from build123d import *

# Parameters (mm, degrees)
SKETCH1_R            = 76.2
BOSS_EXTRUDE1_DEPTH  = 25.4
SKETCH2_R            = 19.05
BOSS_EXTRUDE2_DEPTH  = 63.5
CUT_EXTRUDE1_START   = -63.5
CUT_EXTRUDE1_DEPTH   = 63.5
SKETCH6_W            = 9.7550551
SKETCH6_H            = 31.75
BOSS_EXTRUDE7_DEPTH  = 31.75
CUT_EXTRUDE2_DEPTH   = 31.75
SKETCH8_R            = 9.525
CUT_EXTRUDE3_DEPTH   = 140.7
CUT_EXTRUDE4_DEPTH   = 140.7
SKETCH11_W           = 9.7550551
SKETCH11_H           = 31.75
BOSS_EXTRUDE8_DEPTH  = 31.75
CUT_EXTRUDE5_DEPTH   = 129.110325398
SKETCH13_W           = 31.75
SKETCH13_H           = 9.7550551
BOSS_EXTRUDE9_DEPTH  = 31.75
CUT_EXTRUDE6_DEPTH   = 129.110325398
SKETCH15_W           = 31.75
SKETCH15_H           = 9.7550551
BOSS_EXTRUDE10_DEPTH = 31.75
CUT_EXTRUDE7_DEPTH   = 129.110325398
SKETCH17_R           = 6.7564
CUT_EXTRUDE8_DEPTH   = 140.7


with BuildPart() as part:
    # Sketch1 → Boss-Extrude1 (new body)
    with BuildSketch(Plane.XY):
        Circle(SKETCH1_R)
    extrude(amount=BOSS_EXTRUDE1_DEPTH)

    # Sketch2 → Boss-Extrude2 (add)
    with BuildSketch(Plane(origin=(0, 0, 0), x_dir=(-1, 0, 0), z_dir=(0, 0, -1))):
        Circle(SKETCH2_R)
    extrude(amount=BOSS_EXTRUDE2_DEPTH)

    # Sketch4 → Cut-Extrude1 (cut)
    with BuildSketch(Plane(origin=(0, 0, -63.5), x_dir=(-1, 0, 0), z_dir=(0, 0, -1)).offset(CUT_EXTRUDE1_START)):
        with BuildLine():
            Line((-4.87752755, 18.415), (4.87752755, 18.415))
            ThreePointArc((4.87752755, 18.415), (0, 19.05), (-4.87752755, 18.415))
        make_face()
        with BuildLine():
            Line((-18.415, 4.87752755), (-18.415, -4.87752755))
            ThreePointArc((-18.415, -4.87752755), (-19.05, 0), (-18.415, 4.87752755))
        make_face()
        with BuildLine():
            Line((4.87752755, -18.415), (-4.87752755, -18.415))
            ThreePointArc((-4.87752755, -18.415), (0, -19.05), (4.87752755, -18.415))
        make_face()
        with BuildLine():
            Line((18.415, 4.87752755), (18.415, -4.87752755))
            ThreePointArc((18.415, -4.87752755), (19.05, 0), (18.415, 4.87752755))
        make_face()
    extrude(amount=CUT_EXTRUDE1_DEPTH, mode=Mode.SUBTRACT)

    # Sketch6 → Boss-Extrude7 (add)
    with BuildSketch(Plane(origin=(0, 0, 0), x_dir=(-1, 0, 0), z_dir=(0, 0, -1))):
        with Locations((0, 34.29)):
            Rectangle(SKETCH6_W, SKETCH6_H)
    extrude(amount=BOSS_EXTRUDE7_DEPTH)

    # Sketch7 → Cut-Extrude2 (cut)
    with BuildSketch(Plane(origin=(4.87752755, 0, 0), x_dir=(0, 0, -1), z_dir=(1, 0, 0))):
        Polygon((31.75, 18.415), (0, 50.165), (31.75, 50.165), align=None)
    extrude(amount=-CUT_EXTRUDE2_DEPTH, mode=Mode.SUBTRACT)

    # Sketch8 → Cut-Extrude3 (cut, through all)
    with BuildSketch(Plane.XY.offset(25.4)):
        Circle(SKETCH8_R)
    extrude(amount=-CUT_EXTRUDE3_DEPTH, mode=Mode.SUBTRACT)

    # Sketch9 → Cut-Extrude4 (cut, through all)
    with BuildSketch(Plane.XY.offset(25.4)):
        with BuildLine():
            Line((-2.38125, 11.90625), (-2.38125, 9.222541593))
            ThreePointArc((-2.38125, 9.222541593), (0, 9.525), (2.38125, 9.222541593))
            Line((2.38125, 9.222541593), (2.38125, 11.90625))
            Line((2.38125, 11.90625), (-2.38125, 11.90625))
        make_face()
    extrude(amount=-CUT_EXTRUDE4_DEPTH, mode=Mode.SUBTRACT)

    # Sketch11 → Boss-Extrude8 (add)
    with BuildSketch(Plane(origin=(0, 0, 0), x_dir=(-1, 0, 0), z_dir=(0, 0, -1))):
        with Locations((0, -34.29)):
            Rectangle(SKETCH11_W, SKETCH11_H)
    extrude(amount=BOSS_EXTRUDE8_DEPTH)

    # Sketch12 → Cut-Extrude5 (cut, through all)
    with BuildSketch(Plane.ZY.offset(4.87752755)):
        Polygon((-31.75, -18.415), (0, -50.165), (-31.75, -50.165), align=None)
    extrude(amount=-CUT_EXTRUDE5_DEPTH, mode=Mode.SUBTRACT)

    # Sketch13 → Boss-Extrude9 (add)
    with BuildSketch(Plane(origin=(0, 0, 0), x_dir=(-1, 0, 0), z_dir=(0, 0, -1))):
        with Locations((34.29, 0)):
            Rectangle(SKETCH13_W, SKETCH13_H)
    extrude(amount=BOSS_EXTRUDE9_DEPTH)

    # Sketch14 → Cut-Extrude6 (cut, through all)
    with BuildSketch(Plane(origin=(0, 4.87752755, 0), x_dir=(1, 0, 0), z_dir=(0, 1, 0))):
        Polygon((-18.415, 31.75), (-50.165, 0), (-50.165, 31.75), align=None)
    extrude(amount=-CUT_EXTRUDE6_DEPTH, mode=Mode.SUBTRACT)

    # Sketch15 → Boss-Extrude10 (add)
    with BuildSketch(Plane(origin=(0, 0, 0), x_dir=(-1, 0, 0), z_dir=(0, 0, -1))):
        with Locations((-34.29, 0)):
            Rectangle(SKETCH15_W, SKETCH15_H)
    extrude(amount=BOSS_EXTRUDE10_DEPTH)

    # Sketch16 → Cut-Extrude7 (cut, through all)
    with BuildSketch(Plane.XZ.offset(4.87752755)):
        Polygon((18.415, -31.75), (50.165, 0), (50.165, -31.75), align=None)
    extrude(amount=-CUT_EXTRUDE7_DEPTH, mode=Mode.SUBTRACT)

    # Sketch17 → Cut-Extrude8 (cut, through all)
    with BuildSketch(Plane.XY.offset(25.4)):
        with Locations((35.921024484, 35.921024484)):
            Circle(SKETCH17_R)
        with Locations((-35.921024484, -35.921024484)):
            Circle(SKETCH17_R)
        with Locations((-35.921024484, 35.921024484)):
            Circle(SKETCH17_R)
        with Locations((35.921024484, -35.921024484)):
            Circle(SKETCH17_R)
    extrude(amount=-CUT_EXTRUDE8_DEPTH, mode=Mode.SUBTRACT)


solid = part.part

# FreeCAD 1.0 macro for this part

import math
import FreeCAD as App
import Part
import Sketcher

V = App.Vector
Q = App.Units.Quantity

doc = App.newDocument("Part")
body = doc.addObject("PartDesign::Body", "Body")

# Sketch on XY plane
sketch1 = body.newObject("Sketcher::SketchObject", "Sketch")
sketch1.AttachmentSupport = (doc.getObject("XY_Plane"), [""])
sketch1.MapMode = "FlatFace"
sketch1.addGeometry(Part.Circle(V(0, 0, 0), V(0, 0, 1), 76), False)
sketch1.addConstraint(Sketcher.Constraint("Coincident", 0, 3, -1, 1))
sketch1.addConstraint(Sketcher.Constraint("Diameter", 0, Q("6 in")))
pad1 = body.newObject("PartDesign::Pad", "Pad")
pad1.Profile = sketch1
pad1.Length = Q("1 in")

# Sketch on XY plane
sketch2 = body.newObject("Sketcher::SketchObject", "Sketch001")
sketch2.AttachmentSupport = (doc.getObject("XY_Plane"), [""])
sketch2.MapMode = "FlatFace"
sketch2.addGeometry(Part.Circle(V(0, 0, 0), V(0, 0, 1), 19), False)
sketch2.addConstraint(Sketcher.Constraint("Coincident", 0, 3, -1, 1))
sketch2.addConstraint(Sketcher.Constraint("Diameter", 0, Q("1.5 in")))
pad2 = body.newObject("PartDesign::Pad", "Pad001")
pad2.Profile = sketch2
pad2.Length = Q("2.5 in")
pad2.Reversed = True

# Sketch on XY plane
sketch3 = body.newObject("Sketcher::SketchObject", "Sketch002")
sketch3.AttachmentSupport = (doc.getObject("XY_Plane"), [""])
sketch3.MapMode = "FlatFace"
sketch3.addGeometry(Part.LineSegment(V(5, 18, 0), V(-5, 18, 0)), False)
sketch3.addGeometry(Part.ArcOfCircle(Part.Circle(V(0, 0, 0), V(0, 0, 1), 19), math.radians(75), math.radians(105)), False)
sketch3.addGeometry(Part.LineSegment(V(18, -5, 0), V(18, 5, 0)), False)
sketch3.addGeometry(Part.ArcOfCircle(Part.Circle(V(0, 0, 0), V(0, 0, 1), 19), math.radians(-15), math.radians(15)), False)
sketch3.addGeometry(Part.LineSegment(V(-5, -18, 0), V(5, -18, 0)), False)
sketch3.addGeometry(Part.ArcOfCircle(Part.Circle(V(0, 0, 0), V(0, 0, 1), 19), math.radians(-105), math.radians(-75)), False)
sketch3.addGeometry(Part.LineSegment(V(-18, 5, 0), V(-18, -5, 0)), False)
sketch3.addGeometry(Part.ArcOfCircle(Part.Circle(V(0, 0, 0), V(0, 0, 1), 19), math.radians(165), math.radians(195)), False)
sketch3.addConstraint(Sketcher.Constraint("Coincident", 0, 1, 1, 1))
sketch3.addConstraint(Sketcher.Constraint("Coincident", 1, 2, 0, 2))
sketch3.addConstraint(Sketcher.Constraint("Coincident", 2, 1, 3, 1))
sketch3.addConstraint(Sketcher.Constraint("Coincident", 3, 2, 2, 2))
sketch3.addConstraint(Sketcher.Constraint("Coincident", 4, 1, 5, 1))
sketch3.addConstraint(Sketcher.Constraint("Coincident", 5, 2, 4, 2))
sketch3.addConstraint(Sketcher.Constraint("Coincident", 6, 1, 7, 1))
sketch3.addConstraint(Sketcher.Constraint("Coincident", 7, 2, 6, 2))
sketch3.addConstraint(Sketcher.Constraint("Horizontal", 0))
sketch3.addConstraint(Sketcher.Constraint("Vertical", 2))
sketch3.addConstraint(Sketcher.Constraint("Horizontal", 4))
sketch3.addConstraint(Sketcher.Constraint("Vertical", 6))
sketch3.addConstraint(Sketcher.Constraint("Coincident", 1, 3, -1, 1))
sketch3.addConstraint(Sketcher.Constraint("Coincident", 3, 3, -1, 1))
sketch3.addConstraint(Sketcher.Constraint("Coincident", 5, 3, -1, 1))
sketch3.addConstraint(Sketcher.Constraint("Coincident", 7, 3, -1, 1))
sketch3.addConstraint(Sketcher.Constraint("Equal", 1, 3))
sketch3.addConstraint(Sketcher.Constraint("Equal", 3, 5))
sketch3.addConstraint(Sketcher.Constraint("Equal", 5, 7))
sketch3.addConstraint(Sketcher.Constraint("Horizontal", 3, 2, 6, 1))
sketch3.addConstraint(Sketcher.Constraint("Vertical", 1, 2, 4, 1))
sketch3.addConstraint(Sketcher.Constraint("Equal", 4, 2))
sketch3.addConstraint(Sketcher.Constraint("Radius", 1, Q("0.75 in")))
sketch3.addConstraint(Sketcher.Constraint("DistanceY", -1, 1, 0, 1, Q("0.725 in")))
pocket1 = body.newObject("PartDesign::Pocket", "Pocket")
pocket1.Profile = sketch3
pocket1.Length = Q("2.5 in")

# Sketch on XY plane
sketch4 = body.newObject("Sketcher::SketchObject", "Sketch003")
sketch4.AttachmentSupport = (doc.getObject("XY_Plane"), [""])
sketch4.MapMode = "FlatFace"
sketch4.addGeometry(Part.LineSegment(V(5, 50, 0), V(5, 18, 0)), False)
sketch4.addGeometry(Part.LineSegment(V(5, 18, 0), V(-5, 18, 0)), False)
sketch4.addGeometry(Part.LineSegment(V(-5, 18, 0), V(-5, 50, 0)), False)
sketch4.addGeometry(Part.LineSegment(V(-5, 50, 0), V(5, 50, 0)), False)
sketch4.addConstraint(Sketcher.Constraint("Coincident", 0, 2, 1, 1))
sketch4.addConstraint(Sketcher.Constraint("Coincident", 1, 2, 2, 1))
sketch4.addConstraint(Sketcher.Constraint("Coincident", 2, 2, 3, 1))
sketch4.addConstraint(Sketcher.Constraint("Coincident", 3, 2, 0, 1))
sketch4.addConstraint(Sketcher.Constraint("Vertical", 0))
sketch4.addConstraint(Sketcher.Constraint("Horizontal", 1))
sketch4.addConstraint(Sketcher.Constraint("Vertical", 2))
sketch4.addConstraint(Sketcher.Constraint("Horizontal", 3))
sketch4.addConstraint(Sketcher.Constraint("DistanceY", 0, 2, 0, 1, Q("1.25 in")))
sketch4.addConstraint(Sketcher.Constraint("DistanceY", -1, 1, 0, 2, Q("0.725 in")))
sketch4.addConstraint(Sketcher.Constraint("DistanceX", 1, 2, 1, 1, 9.755055))
sketch4.addConstraint(Sketcher.Constraint("DistanceX", -1, 1, 0, 2, 4.877528))
pad3 = body.newObject("PartDesign::Pad", "Pad002")
pad3.Profile = sketch4
pad3.Length = Q("1.25 in")
pad3.Reversed = True

# Sketch on YZ plane
sketch5 = body.newObject("Sketcher::SketchObject", "Sketch004")
sketch5.AttachmentSupport = (doc.getObject("YZ_Plane"), [""])
sketch5.MapMode = "FlatFace"
sketch5.AttachmentOffset = App.Placement(V(0, 0, 4.877528), App.Rotation())
sketch5.addGeometry(Part.LineSegment(V(50, 0, 0), V(18, -32, 0)), False)
sketch5.addGeometry(Part.LineSegment(V(18, -32, 0), V(50, -32, 0)), False)
sketch5.addGeometry(Part.LineSegment(V(50, -32, 0), V(50, 0, 0)), False)
sketch5.addConstraint(Sketcher.Constraint("Coincident", 0, 2, 1, 1))
sketch5.addConstraint(Sketcher.Constraint("Coincident", 1, 2, 2, 1))
sketch5.addConstraint(Sketcher.Constraint("Coincident", 2, 2, 0, 1))
sketch5.addConstraint(Sketcher.Constraint("Horizontal", 1))
sketch5.addConstraint(Sketcher.Constraint("Vertical", 2))
sketch5.addConstraint(Sketcher.Constraint("PointOnObject", 2, 2, -1))
sketch5.addConstraint(Sketcher.Constraint("Equal", 1, 2))
sketch5.addConstraint(Sketcher.Constraint("DistanceX", 1, 1, 1, 2, Q("1.25 in")))
sketch5.addConstraint(Sketcher.Constraint("DistanceX", -1, 1, 0, 2, Q("0.725 in")))
pocket2 = body.newObject("PartDesign::Pocket", "Pocket001")
pocket2.Profile = sketch5
pocket2.Length = Q("1.25 in")

# Sketch on XY plane
sketch6 = body.newObject("Sketcher::SketchObject", "Sketch005")
sketch6.AttachmentSupport = (doc.getObject("XY_Plane"), [""])
sketch6.MapMode = "FlatFace"
sketch6.AttachmentOffset = App.Placement(V(0, 0, 1 * 25.4), App.Rotation())
sketch6.addGeometry(Part.Circle(V(0, 0, 0), V(0, 0, 1), 10), False)
sketch6.addConstraint(Sketcher.Constraint("Coincident", 0, 3, -1, 1))
sketch6.addConstraint(Sketcher.Constraint("Diameter", 0, Q("0.75 in")))
pocket3 = body.newObject("PartDesign::Pocket", "Pocket002")
pocket3.Profile = sketch6
pocket3.Type = "ThroughAll"

# Sketch on XY plane
sketch7 = body.newObject("Sketcher::SketchObject", "Sketch006")
sketch7.AttachmentSupport = (doc.getObject("XY_Plane"), [""])
sketch7.MapMode = "FlatFace"
sketch7.AttachmentOffset = App.Placement(V(0, 0, 1 * 25.4), App.Rotation())
sketch7.addGeometry(Part.LineSegment(V(-2.4, 11.9, 0), V(-2.4, 9.2, 0)), False)
sketch7.addGeometry(Part.ArcOfCircle(Part.Circle(V(0, 0, 0), V(0, 0, 1), 9.5), math.radians(76), math.radians(104)), False)
sketch7.addGeometry(Part.LineSegment(V(2.4, 9.2, 0), V(2.4, 11.9, 0)), False)
sketch7.addGeometry(Part.LineSegment(V(2.4, 11.9, 0), V(-2.4, 11.9, 0)), False)
sketch7.addConstraint(Sketcher.Constraint("Coincident", 0, 2, 1, 2))
sketch7.addConstraint(Sketcher.Constraint("Coincident", 1, 1, 2, 1))
sketch7.addConstraint(Sketcher.Constraint("Coincident", 2, 2, 3, 1))
sketch7.addConstraint(Sketcher.Constraint("Coincident", 3, 2, 0, 1))
sketch7.addConstraint(Sketcher.Constraint("Vertical", 0))
sketch7.addConstraint(Sketcher.Constraint("Vertical", 2))
sketch7.addConstraint(Sketcher.Constraint("Horizontal", 3))
sketch7.addConstraint(Sketcher.Constraint("Coincident", 1, 3, -1, 1))
sketch7.addConstraint(Sketcher.Constraint("Horizontal", 0, 2, 1, 1))
sketch7.addConstraint(Sketcher.Constraint("Radius", 1, Q("0.375 in")))
sketch7.addConstraint(Sketcher.Constraint("DistanceX", 3, 2, 3, 1, Q("0.1875 in")))
sketch7.addConstraint(Sketcher.Constraint("DistanceY", -1, 1, 2, 2, Q("0.46875 in")))
pocket4 = body.newObject("PartDesign::Pocket", "Pocket003")
pocket4.Profile = sketch7
pocket4.Type = "ThroughAll"

# Sketch on XY plane
sketch8 = body.newObject("Sketcher::SketchObject", "Sketch007")
sketch8.AttachmentSupport = (doc.getObject("XY_Plane"), [""])
sketch8.MapMode = "FlatFace"
sketch8.addGeometry(Part.LineSegment(V(5, -18, 0), V(5, -50, 0)), False)
sketch8.addGeometry(Part.LineSegment(V(5, -50, 0), V(-5, -50, 0)), False)
sketch8.addGeometry(Part.LineSegment(V(-5, -50, 0), V(-5, -18, 0)), False)
sketch8.addGeometry(Part.LineSegment(V(-5, -18, 0), V(5, -18, 0)), False)
sketch8.addConstraint(Sketcher.Constraint("Coincident", 0, 2, 1, 1))
sketch8.addConstraint(Sketcher.Constraint("Coincident", 1, 2, 2, 1))
sketch8.addConstraint(Sketcher.Constraint("Coincident", 2, 2, 3, 1))
sketch8.addConstraint(Sketcher.Constraint("Coincident", 3, 2, 0, 1))
sketch8.addConstraint(Sketcher.Constraint("Vertical", 0))
sketch8.addConstraint(Sketcher.Constraint("Horizontal", 1))
sketch8.addConstraint(Sketcher.Constraint("Vertical", 2))
sketch8.addConstraint(Sketcher.Constraint("Horizontal", 3))
sketch8.addConstraint(Sketcher.Constraint("DistanceY", 0, 2, 0, 1, Q("1.25 in")))
sketch8.addConstraint(Sketcher.Constraint("DistanceY", 0, 2, -1, 1, Q("1.975 in")))
sketch8.addConstraint(Sketcher.Constraint("DistanceX", 1, 2, 1, 1, 9.755055))
sketch8.addConstraint(Sketcher.Constraint("DistanceX", -1, 1, 0, 2, 4.877528))
pad4 = body.newObject("PartDesign::Pad", "Pad003")
pad4.Profile = sketch8
pad4.Length = Q("1.25 in")
pad4.Reversed = True

# Sketch on YZ plane
sketch9 = body.newObject("Sketcher::SketchObject", "Sketch008")
sketch9.AttachmentSupport = (doc.getObject("YZ_Plane"), [""])
sketch9.MapMode = "FlatFace"
sketch9.AttachmentOffset = App.Placement(V(0, 0, -4.877528), App.Rotation())
sketch9.addGeometry(Part.LineSegment(V(-50, 0, 0), V(-18, -32, 0)), False)
sketch9.addGeometry(Part.LineSegment(V(-18, -32, 0), V(-50, -32, 0)), False)
sketch9.addGeometry(Part.LineSegment(V(-50, -32, 0), V(-50, 0, 0)), False)
sketch9.addConstraint(Sketcher.Constraint("Coincident", 0, 2, 1, 1))
sketch9.addConstraint(Sketcher.Constraint("Coincident", 1, 2, 2, 1))
sketch9.addConstraint(Sketcher.Constraint("Coincident", 2, 2, 0, 1))
sketch9.addConstraint(Sketcher.Constraint("Horizontal", 1))
sketch9.addConstraint(Sketcher.Constraint("Vertical", 2))
sketch9.addConstraint(Sketcher.Constraint("PointOnObject", 2, 2, -1))
sketch9.addConstraint(Sketcher.Constraint("Equal", 1, 2))
sketch9.addConstraint(Sketcher.Constraint("DistanceX", 1, 2, 1, 1, Q("1.25 in")))
sketch9.addConstraint(Sketcher.Constraint("DistanceX", 0, 2, -1, 1, Q("0.725 in")))
pocket5 = body.newObject("PartDesign::Pocket", "Pocket004")
pocket5.Profile = sketch9
pocket5.Type = "ThroughAll"
pocket5.Reversed = True

# Sketch on XY plane
sketch10 = body.newObject("Sketcher::SketchObject", "Sketch009")
sketch10.AttachmentSupport = (doc.getObject("XY_Plane"), [""])
sketch10.MapMode = "FlatFace"
sketch10.addGeometry(Part.LineSegment(V(-18, 5, 0), V(-18, -5, 0)), False)
sketch10.addGeometry(Part.LineSegment(V(-18, -5, 0), V(-50, -5, 0)), False)
sketch10.addGeometry(Part.LineSegment(V(-50, -5, 0), V(-50, 5, 0)), False)
sketch10.addGeometry(Part.LineSegment(V(-50, 5, 0), V(-18, 5, 0)), False)
sketch10.addConstraint(Sketcher.Constraint("Coincident", 0, 2, 1, 1))
sketch10.addConstraint(Sketcher.Constraint("Coincident", 1, 2, 2, 1))
sketch10.addConstraint(Sketcher.Constraint("Coincident", 2, 2, 3, 1))
sketch10.addConstraint(Sketcher.Constraint("Coincident", 3, 2, 0, 1))
sketch10.addConstraint(Sketcher.Constraint("Vertical", 0))
sketch10.addConstraint(Sketcher.Constraint("Horizontal", 1))
sketch10.addConstraint(Sketcher.Constraint("Vertical", 2))
sketch10.addConstraint(Sketcher.Constraint("Horizontal", 3))
sketch10.addConstraint(Sketcher.Constraint("DistanceX", 1, 2, 1, 1, Q("1.25 in")))
sketch10.addConstraint(Sketcher.Constraint("DistanceX", 0, 2, -1, 1, Q("0.725 in")))
sketch10.addConstraint(Sketcher.Constraint("DistanceY", 0, 2, 0, 1, 9.755055))
sketch10.addConstraint(Sketcher.Constraint("DistanceY", 0, 2, -1, 1, 4.877528))
pad5 = body.newObject("PartDesign::Pad", "Pad004")
pad5.Profile = sketch10
pad5.Length = Q("1.25 in")
pad5.Reversed = True

# Sketch on XZ plane
sketch11 = body.newObject("Sketcher::SketchObject", "Sketch010")
sketch11.AttachmentSupport = (doc.getObject("XZ_Plane"), [""])
sketch11.MapMode = "FlatFace"
sketch11.AttachmentOffset = App.Placement(V(0, 0, -4.877528), App.Rotation())
sketch11.addGeometry(Part.LineSegment(V(-50, 0, 0), V(-18, -32, 0)), False)
sketch11.addGeometry(Part.LineSegment(V(-18, -32, 0), V(-50, -32, 0)), False)
sketch11.addGeometry(Part.LineSegment(V(-50, -32, 0), V(-50, 0, 0)), False)
sketch11.addConstraint(Sketcher.Constraint("Coincident", 0, 2, 1, 1))
sketch11.addConstraint(Sketcher.Constraint("Coincident", 1, 2, 2, 1))
sketch11.addConstraint(Sketcher.Constraint("Coincident", 2, 2, 0, 1))
sketch11.addConstraint(Sketcher.Constraint("Horizontal", 1))
sketch11.addConstraint(Sketcher.Constraint("Vertical", 2))
sketch11.addConstraint(Sketcher.Constraint("PointOnObject", 2, 2, -1))
sketch11.addConstraint(Sketcher.Constraint("Equal", 1, 2))
sketch11.addConstraint(Sketcher.Constraint("DistanceX", 1, 2, 1, 1, Q("1.25 in")))
sketch11.addConstraint(Sketcher.Constraint("DistanceX", 0, 2, -1, 1, Q("0.725 in")))
pocket6 = body.newObject("PartDesign::Pocket", "Pocket005")
pocket6.Profile = sketch11
pocket6.Type = "ThroughAll"
pocket6.Reversed = True

# Sketch on XY plane
sketch12 = body.newObject("Sketcher::SketchObject", "Sketch011")
sketch12.AttachmentSupport = (doc.getObject("XY_Plane"), [""])
sketch12.MapMode = "FlatFace"
sketch12.addGeometry(Part.LineSegment(V(50, 5, 0), V(50, -5, 0)), False)
sketch12.addGeometry(Part.LineSegment(V(50, -5, 0), V(18, -5, 0)), False)
sketch12.addGeometry(Part.LineSegment(V(18, -5, 0), V(18, 5, 0)), False)
sketch12.addGeometry(Part.LineSegment(V(18, 5, 0), V(50, 5, 0)), False)
sketch12.addConstraint(Sketcher.Constraint("Coincident", 0, 2, 1, 1))
sketch12.addConstraint(Sketcher.Constraint("Coincident", 1, 2, 2, 1))
sketch12.addConstraint(Sketcher.Constraint("Coincident", 2, 2, 3, 1))
sketch12.addConstraint(Sketcher.Constraint("Coincident", 3, 2, 0, 1))
sketch12.addConstraint(Sketcher.Constraint("Vertical", 0))
sketch12.addConstraint(Sketcher.Constraint("Horizontal", 1))
sketch12.addConstraint(Sketcher.Constraint("Vertical", 2))
sketch12.addConstraint(Sketcher.Constraint("Horizontal", 3))
sketch12.addConstraint(Sketcher.Constraint("DistanceX", 1, 2, 1, 1, Q("1.25 in")))
sketch12.addConstraint(Sketcher.Constraint("DistanceX", -1, 1, 0, 2, Q("1.975 in")))
sketch12.addConstraint(Sketcher.Constraint("DistanceY", 0, 2, 0, 1, 9.755055))
sketch12.addConstraint(Sketcher.Constraint("DistanceY", 0, 2, -1, 1, 4.877528))
pad6 = body.newObject("PartDesign::Pad", "Pad005")
pad6.Profile = sketch12
pad6.Length = Q("1.25 in")
pad6.Reversed = True

# Sketch on XZ plane
sketch13 = body.newObject("Sketcher::SketchObject", "Sketch012")
sketch13.AttachmentSupport = (doc.getObject("XZ_Plane"), [""])
sketch13.MapMode = "FlatFace"
sketch13.AttachmentOffset = App.Placement(V(0, 0, 4.877528), App.Rotation())
sketch13.addGeometry(Part.LineSegment(V(50, 0, 0), V(18, -32, 0)), False)
sketch13.addGeometry(Part.LineSegment(V(18, -32, 0), V(50, -32, 0)), False)
sketch13.addGeometry(Part.LineSegment(V(50, -32, 0), V(50, 0, 0)), False)
sketch13.addConstraint(Sketcher.Constraint("Coincident", 0, 2, 1, 1))
sketch13.addConstraint(Sketcher.Constraint("Coincident", 1, 2, 2, 1))
sketch13.addConstraint(Sketcher.Constraint("Coincident", 2, 2, 0, 1))
sketch13.addConstraint(Sketcher.Constraint("Horizontal", 1))
sketch13.addConstraint(Sketcher.Constraint("Vertical", 2))
sketch13.addConstraint(Sketcher.Constraint("PointOnObject", 2, 2, -1))
sketch13.addConstraint(Sketcher.Constraint("Equal", 1, 2))
sketch13.addConstraint(Sketcher.Constraint("DistanceX", 1, 1, 1, 2, Q("1.25 in")))
sketch13.addConstraint(Sketcher.Constraint("DistanceX", -1, 1, 0, 2, Q("0.725 in")))
pocket7 = body.newObject("PartDesign::Pocket", "Pocket006")
pocket7.Profile = sketch13
pocket7.Type = "ThroughAll"

# Sketch on XY plane
sketch14 = body.newObject("Sketcher::SketchObject", "Sketch013")
sketch14.AttachmentSupport = (doc.getObject("XY_Plane"), [""])
sketch14.MapMode = "FlatFace"
sketch14.AttachmentOffset = App.Placement(V(0, 0, 1 * 25.4), App.Rotation())
sketch14.addGeometry(Part.Circle(V(36, 36, 0), V(0, 0, 1), 7), False)
sketch14.addGeometry(Part.Circle(V(-36, -36, 0), V(0, 0, 1), 7), False)
sketch14.addGeometry(Part.Circle(V(-36, 36, 0), V(0, 0, 1), 7), False)
sketch14.addGeometry(Part.Circle(V(36, -36, 0), V(0, 0, 1), 7), False)
sketch14.addConstraint(Sketcher.Constraint("Equal", 0, 1))
sketch14.addConstraint(Sketcher.Constraint("Equal", 1, 2))
sketch14.addConstraint(Sketcher.Constraint("Equal", 2, 3))
sketch14.addConstraint(Sketcher.Constraint("Symmetric", 0, 3, 1, 3, -1, 1))
sketch14.addConstraint(Sketcher.Constraint("Symmetric", 2, 3, 3, 3, -1, 1))
sketch14.addConstraint(Sketcher.Constraint("Symmetric", 0, 3, 2, 3, -2))
sketch14.addConstraint(Sketcher.Constraint("Diameter", 0, Q("0.532 in")))
sketch14.addConstraint(Sketcher.Constraint("DistanceX", 1, 3, 0, 3, 71.842049))
sketch14.addConstraint(Sketcher.Constraint("DistanceY", 1, 3, 0, 3, 71.842049))
pocket8 = body.newObject("PartDesign::Pocket", "Pocket007")
pocket8.Profile = sketch14
pocket8.Type = "ThroughAll"

doc.recompute()
